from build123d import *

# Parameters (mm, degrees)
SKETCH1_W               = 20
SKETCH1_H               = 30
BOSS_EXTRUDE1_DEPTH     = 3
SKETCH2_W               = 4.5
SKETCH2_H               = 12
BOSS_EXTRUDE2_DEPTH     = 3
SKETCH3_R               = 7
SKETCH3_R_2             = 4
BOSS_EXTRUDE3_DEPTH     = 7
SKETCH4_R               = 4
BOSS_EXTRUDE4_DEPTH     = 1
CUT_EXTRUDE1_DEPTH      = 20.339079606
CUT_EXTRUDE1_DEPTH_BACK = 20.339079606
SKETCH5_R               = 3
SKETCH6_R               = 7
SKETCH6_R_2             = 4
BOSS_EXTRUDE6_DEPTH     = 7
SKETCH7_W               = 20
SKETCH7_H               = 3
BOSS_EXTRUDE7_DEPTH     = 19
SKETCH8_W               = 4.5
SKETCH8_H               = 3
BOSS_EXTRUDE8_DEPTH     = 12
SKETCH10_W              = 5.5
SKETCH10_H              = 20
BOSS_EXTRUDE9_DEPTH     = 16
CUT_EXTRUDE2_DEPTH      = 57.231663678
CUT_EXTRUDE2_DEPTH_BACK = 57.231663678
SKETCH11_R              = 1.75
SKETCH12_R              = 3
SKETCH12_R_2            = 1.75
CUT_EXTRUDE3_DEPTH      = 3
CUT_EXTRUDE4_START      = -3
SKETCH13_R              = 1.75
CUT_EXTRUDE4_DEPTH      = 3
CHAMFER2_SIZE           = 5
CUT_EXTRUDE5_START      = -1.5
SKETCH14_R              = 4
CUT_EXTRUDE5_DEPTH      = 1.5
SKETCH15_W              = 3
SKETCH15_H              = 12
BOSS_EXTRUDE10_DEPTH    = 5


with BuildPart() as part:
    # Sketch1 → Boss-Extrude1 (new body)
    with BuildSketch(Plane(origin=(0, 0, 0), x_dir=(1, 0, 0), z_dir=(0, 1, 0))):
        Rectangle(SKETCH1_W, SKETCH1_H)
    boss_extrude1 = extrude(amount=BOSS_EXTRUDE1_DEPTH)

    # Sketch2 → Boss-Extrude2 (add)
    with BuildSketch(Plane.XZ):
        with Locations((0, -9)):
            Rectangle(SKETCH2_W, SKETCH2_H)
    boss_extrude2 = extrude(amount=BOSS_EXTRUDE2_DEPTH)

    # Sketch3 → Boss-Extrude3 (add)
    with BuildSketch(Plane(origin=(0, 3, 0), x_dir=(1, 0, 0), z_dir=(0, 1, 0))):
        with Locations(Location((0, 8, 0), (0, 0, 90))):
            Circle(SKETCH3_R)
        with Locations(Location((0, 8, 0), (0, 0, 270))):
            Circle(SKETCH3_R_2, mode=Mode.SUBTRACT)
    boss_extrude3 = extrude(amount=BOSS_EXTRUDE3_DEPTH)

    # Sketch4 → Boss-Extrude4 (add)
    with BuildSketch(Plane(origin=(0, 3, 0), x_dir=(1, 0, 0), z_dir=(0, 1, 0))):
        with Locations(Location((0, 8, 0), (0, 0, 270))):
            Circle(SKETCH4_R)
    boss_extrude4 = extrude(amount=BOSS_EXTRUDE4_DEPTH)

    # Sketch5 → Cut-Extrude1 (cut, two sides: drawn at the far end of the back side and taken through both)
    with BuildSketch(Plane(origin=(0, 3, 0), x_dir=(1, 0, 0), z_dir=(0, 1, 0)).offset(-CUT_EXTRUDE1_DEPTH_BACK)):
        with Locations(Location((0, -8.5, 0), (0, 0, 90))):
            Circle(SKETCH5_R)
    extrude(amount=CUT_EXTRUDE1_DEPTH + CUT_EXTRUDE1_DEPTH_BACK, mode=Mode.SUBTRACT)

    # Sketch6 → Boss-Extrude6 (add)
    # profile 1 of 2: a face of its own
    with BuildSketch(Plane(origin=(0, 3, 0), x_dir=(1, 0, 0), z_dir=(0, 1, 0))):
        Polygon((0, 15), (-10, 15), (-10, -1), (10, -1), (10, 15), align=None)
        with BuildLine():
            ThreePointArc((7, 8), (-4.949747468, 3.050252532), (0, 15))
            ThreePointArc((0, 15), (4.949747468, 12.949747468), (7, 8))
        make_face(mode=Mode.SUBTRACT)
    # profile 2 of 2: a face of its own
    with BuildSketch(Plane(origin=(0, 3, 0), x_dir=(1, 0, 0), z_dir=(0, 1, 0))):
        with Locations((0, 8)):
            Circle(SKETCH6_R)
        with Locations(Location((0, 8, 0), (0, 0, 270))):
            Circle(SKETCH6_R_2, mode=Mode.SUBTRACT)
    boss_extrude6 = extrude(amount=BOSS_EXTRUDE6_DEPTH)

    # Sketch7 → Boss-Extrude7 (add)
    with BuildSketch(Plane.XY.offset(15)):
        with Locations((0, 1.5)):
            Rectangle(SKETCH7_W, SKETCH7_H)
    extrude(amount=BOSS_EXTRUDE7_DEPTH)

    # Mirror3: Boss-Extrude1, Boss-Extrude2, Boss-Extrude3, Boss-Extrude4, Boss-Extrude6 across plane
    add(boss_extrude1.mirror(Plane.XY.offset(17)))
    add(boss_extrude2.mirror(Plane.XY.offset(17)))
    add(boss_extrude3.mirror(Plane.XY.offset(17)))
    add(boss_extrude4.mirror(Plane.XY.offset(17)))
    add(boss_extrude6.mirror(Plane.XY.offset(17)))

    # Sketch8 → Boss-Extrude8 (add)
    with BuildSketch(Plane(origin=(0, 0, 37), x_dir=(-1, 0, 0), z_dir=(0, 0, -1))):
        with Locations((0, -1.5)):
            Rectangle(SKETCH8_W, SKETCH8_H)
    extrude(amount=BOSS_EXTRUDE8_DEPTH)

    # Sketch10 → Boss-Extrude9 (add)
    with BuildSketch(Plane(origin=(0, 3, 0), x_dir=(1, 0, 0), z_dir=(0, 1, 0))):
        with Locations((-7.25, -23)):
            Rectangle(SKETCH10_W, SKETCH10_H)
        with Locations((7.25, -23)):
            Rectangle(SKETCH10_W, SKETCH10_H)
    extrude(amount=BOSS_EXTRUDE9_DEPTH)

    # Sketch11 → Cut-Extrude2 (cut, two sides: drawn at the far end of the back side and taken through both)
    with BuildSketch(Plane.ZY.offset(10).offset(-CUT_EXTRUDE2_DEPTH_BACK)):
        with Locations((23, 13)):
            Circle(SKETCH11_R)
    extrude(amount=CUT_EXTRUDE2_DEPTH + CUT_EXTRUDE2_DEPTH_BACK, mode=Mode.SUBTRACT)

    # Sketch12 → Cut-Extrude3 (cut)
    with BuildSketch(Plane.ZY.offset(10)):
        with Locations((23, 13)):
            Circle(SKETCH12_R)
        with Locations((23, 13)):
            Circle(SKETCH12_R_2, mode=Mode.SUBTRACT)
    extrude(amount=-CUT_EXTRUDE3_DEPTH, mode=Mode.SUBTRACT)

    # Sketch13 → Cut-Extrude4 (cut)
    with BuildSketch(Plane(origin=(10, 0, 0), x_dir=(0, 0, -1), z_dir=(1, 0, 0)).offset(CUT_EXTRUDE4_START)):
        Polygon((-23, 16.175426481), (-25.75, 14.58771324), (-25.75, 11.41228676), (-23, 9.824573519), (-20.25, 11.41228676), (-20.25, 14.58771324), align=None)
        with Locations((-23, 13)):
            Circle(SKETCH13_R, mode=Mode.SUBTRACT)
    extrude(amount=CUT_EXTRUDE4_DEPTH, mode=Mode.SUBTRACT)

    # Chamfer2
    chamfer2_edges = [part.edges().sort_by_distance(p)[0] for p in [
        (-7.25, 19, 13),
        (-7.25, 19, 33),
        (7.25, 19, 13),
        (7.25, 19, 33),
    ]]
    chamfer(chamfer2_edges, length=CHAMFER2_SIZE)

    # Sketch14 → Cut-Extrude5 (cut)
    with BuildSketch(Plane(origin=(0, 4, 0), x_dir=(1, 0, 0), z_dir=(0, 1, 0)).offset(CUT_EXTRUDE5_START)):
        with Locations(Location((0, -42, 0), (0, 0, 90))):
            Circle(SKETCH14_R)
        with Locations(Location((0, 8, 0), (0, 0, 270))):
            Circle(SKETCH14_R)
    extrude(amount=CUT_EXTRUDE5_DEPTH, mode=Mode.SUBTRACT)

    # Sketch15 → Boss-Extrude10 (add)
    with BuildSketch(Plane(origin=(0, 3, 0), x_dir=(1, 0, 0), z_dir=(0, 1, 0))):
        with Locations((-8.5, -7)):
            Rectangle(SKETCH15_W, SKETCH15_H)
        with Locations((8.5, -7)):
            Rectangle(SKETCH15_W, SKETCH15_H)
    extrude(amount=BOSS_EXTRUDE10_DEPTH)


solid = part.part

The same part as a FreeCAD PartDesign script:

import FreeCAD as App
import Part
import Sketcher

V = App.Vector
Q = App.Units.Quantity


def edges_at(feature, points):
    """Names of the edges that pass closest to the given points."""
    edges = feature.Shape.Edges
    near = lambda p: min(range(len(edges)), key=lambda i: edges[i].distToShape(Part.Vertex(*p))[0])
    return sorted({f"Edge{near(p) + 1}" for p in points})


def add_polygon(sketch, points):
    """Adds a closed chain of lines whose ends are joined by coincident constraints."""
    first, n = sketch.GeometryCount, len(points)
    for a, b in zip(points, points[1:] + points[:1]):
        sketch.addGeometry(Part.LineSegment(App.Vector(*a, 0), App.Vector(*b, 0)), False)
    for i in range(n):
        sketch.addConstraint(Sketcher.Constraint("Coincident", first + i, 2, first + (i + 1) % n, 1))

doc = App.newDocument("Part")
params = doc.addObject("Spreadsheet::Sheet", "Params")
for row, (alias, value) in enumerate([
    ("sketch1_width", "20 mm"),
    ("sketch1_height", "30 mm"),
    ("pad1_length", "3 mm"),
    ("sketch2_height", "12 mm"),
    ("sketch2_width", "4.5 mm"),
    ("pad2_length", "3 mm"),
    ("sketch3_diameter", "14 mm"),
    ("sketch3_diameter2", "8 mm"),
    ("pad3_length", "7 mm"),
    ("sketch4_diameter", "8 mm"),
    ("pad4_length", "1 mm"),
    ("sketch5_diameter", "6 mm"),
    ("sketch6_diameter", "8 mm"),
    ("sketch6_width", "20 mm"),
    ("sketch6_height", "16 mm"),
    ("pad5_length", "7 mm"),
    ("sketch7_width", "20 mm"),
    ("sketch7_height", "3 mm"),
    ("pad6_length", "19 mm"),
    ("sketch8_height", "3 mm"),
    ("sketch8_width", "4.5 mm"),
    ("pad7_length", "12 mm"),
    ("sketch9_height", "20 mm"),
    ("sketch9_width", "5.5 mm"),
    ("pad8_length", "16 mm"),
    ("sketch10_diameter", "3.5 mm"),
    ("sketch11_diameter", "6 mm"),
    ("sketch11_diameter2", "3.5 mm"),
    ("pocket3_length", "3 mm"),
    ("sketch12_diameter", "3.5 mm"),
    ("pocket4_length", "3 mm"),
    ("chamfer_size", "5 mm"),
    ("sketch13_diameter", "8 mm"),
    ("pocket5_length", "1.5 mm"),
    ("sketch14_width", "3 mm"),
    ("sketch14_height", "12 mm"),
    ("pad9_length", "5 mm"),
], start=1):
    params.set(f"A{row}", alias)
    params.set(f"B{row}", "=" + value)
    params.setAlias(f"B{row}", alias)

body = doc.addObject("PartDesign::Body", "Body")

# Sketch on XZ plane
sketch1 = doc.addObject("Sketcher::SketchObject", "Sketch")
body.addObject(sketch1)
sketch1.AttachmentSupport = (doc.XZ_Plane, [""])
sketch1.MapMode = "FlatFace"
add_polygon(sketch1, [(-10, -15), (-10, 15), (10, 15), (10, -15)])  # lines 0-3
sketch1.addConstraint(Sketcher.Constraint("Vertical", 0))
sketch1.addConstraint(Sketcher.Constraint("Horizontal", 1))
sketch1.addConstraint(Sketcher.Constraint("Vertical", 2))
sketch1.addConstraint(Sketcher.Constraint("Horizontal", 3))
sketch1.addConstraint(Sketcher.Constraint("Symmetric", 0, 2, 2, 2, -1, 1))
sketch1.addConstraint(Sketcher.Constraint("DistanceX", 1, 1, 1, 2, 20.0))
sketch1.addConstraint(Sketcher.Constraint("DistanceY", 0, 1, 0, 2, 30.0))
sketch1.setExpression("Constraints[9]", "Params.sketch1_width")
sketch1.setExpression("Constraints[10]", "Params.sketch1_height")
pad1 = doc.addObject("PartDesign::Pad", "Pad")
body.addObject(pad1)
pad1.Profile = sketch1
pad1.setExpression("Length", "Params.pad1_length")
pad1.Reversed = True

# Sketch on XZ plane
sketch2 = doc.addObject("Sketcher::SketchObject", "Sketch001")
body.addObject(sketch2)
sketch2.AttachmentSupport = (doc.XZ_Plane, [""])
sketch2.MapMode = "FlatFace"
add_polygon(sketch2, [(-2.2, -3), (-2.2, -15), (2.2, -15), (2.2, -3)])  # lines 0-3
sketch2.addConstraint(Sketcher.Constraint("Vertical", 0))
sketch2.addConstraint(Sketcher.Constraint("Horizontal", 1))
sketch2.addConstraint(Sketcher.Constraint("Vertical", 2))
sketch2.addConstraint(Sketcher.Constraint("Horizontal", 3))
sketch2.addConstraint(Sketcher.Constraint("DistanceY", 0, 2, 0, 1, 12.0))
sketch2.addConstraint(Sketcher.Constraint("DistanceX", 1, 1, 1, 2, 4.5))
sketch2.addConstraint(Sketcher.Constraint("DistanceY", 0, 2, -1, 1, 15.0))
sketch2.addConstraint(Sketcher.Constraint("DistanceX", 0, 2, -1, 1, 2.25))
sketch2.setExpression("Constraints[8]", "Params.sketch2_height")
sketch2.setExpression("Constraints[9]", "Params.sketch2_width")
pad2 = doc.addObject("PartDesign::Pad", "Pad001")
body.addObject(pad2)
pad2.Profile = sketch2
pad2.setExpression("Length", "Params.pad2_length")

# Sketch on XZ plane
sketch3 = doc.addObject("Sketcher::SketchObject", "Sketch002")
body.addObject(sketch3)
sketch3.AttachmentSupport = (doc.XZ_Plane, [""])
sketch3.MapMode = "FlatFace"
sketch3.AttachmentOffset = App.Placement(V(0, 0, -3), App.Rotation())
sketch3.addGeometry(Part.Circle(V(0, -8, 0), V(0, 0, 1), 7), False)
sketch3.addGeometry(Part.Circle(V(0, -8, 0), V(0, 0, 1), 4), False)
sketch3.addConstraint(Sketcher.Constraint("Coincident", 1, 3, 0, 3))
sketch3.addConstraint(Sketcher.Constraint("PointOnObject", 0, 3, -2))
sketch3.addConstraint(Sketcher.Constraint("Diameter", 0, 14.0))
sketch3.addConstraint(Sketcher.Constraint("Diameter", 1, 8.0))
sketch3.addConstraint(Sketcher.Constraint("DistanceY", 0, 3, -1, 1, 8.0))
sketch3.setExpression("Constraints[2]", "Params.sketch3_diameter")
sketch3.setExpression("Constraints[3]", "Params.sketch3_diameter2")
pad3 = doc.addObject("PartDesign::Pad", "Pad002")
body.addObject(pad3)
pad3.Profile = sketch3
pad3.setExpression("Length", "Params.pad3_length")
pad3.Reversed = True

# Sketch on XZ plane
sketch4 = doc.addObject("Sketcher::SketchObject", "Sketch003")
body.addObject(sketch4)
sketch4.AttachmentSupport = (doc.XZ_Plane, [""])
sketch4.MapMode = "FlatFace"
sketch4.AttachmentOffset = App.Placement(V(0, 0, -3), App.Rotation())
sketch4.addGeometry(Part.Circle(V(0, -8, 0), V(0, 0, 1), 4), False)
sketch4.addConstraint(Sketcher.Constraint("PointOnObject", 0, 3, -2))
sketch4.addConstraint(Sketcher.Constraint("Diameter", 0, 8.0))
sketch4.addConstraint(Sketcher.Constraint("DistanceY", 0, 3, -1, 1, 8.0))
sketch4.setExpression("Constraints[1]", "Params.sketch4_diameter")
pad4 = doc.addObject("PartDesign::Pad", "Pad003")
body.addObject(pad4)
pad4.Profile = sketch4
pad4.setExpression("Length", "Params.pad4_length")
pad4.Reversed = True

# Sketch on XZ plane
sketch5 = doc.addObject("Sketcher::SketchObject", "Sketch004")
body.addObject(sketch5)
sketch5.AttachmentSupport = (doc.XZ_Plane, [""])
sketch5.MapMode = "FlatFace"
sketch5.AttachmentOffset = App.Placement(V(0, 0, -3), App.Rotation())
sketch5.addGeometry(Part.Circle(V(0, 8.5, 0), V(0, 0, 1), 3), False)
sketch5.addConstraint(Sketcher.Constraint("PointOnObject", 0, 3, -2))
sketch5.addConstraint(Sketcher.Constraint("Diameter", 0, 6.0))
sketch5.addConstraint(Sketcher.Constraint("DistanceY", -1, 1, 0, 3, 8.5))
sketch5.setExpression("Constraints[1]", "Params.sketch5_diameter")
pocket1 = doc.addObject("PartDesign::Pocket", "Pocket")
body.addObject(pocket1)
pocket1.Profile = sketch5
pocket1.Type = "ThroughAll"
pocket1.Midplane = True

# Sketch on XZ plane
sketch6 = doc.addObject("Sketcher::SketchObject", "Sketch005")
body.addObject(sketch6)
sketch6.AttachmentSupport = (doc.XZ_Plane, [""])
sketch6.MapMode = "FlatFace"
sketch6.AttachmentOffset = App.Placement(V(0, 0, -3), App.Rotation())
add_polygon(sketch6, [(10, -15), (-10, -15), (-10, 1), (10, 1)])  # lines 0-3
sketch6.addGeometry(Part.Circle(V(0, -8, 0), V(0, 0, 1), 4), False)  # 4
sketch6.addConstraint(Sketcher.Constraint("Horizontal", 0))
sketch6.addConstraint(Sketcher.Constraint("Vertical", 1))
sketch6.addConstraint(Sketcher.Constraint("Horizontal", 2))
sketch6.addConstraint(Sketcher.Constraint("Vertical", 3))
sketch6.addConstraint(Sketcher.Constraint("PointOnObject", 4, 3, -2))
sketch6.addConstraint(Sketcher.Constraint("Diameter", 4, 8.0))
sketch6.addConstraint(Sketcher.Constraint("DistanceX", 0, 2, 0, 1, 20.0))
sketch6.addConstraint(Sketcher.Constraint("DistanceY", 1, 1, 1, 2, 16.0))
sketch6.addConstraint(Sketcher.Constraint("DistanceY", 4, 3, -1, 1, 8.0))
sketch6.addConstraint(Sketcher.Constraint("DistanceX", 0, 2, -1, 1, 10.0))
sketch6.addConstraint(Sketcher.Constraint("DistanceY", 0, 2, -1, 1, 15.0))
sketch6.setExpression("Constraints[9]", "Params.sketch6_diameter")
sketch6.setExpression("Constraints[10]", "Params.sketch6_width")
sketch6.setExpression("Constraints[11]", "Params.sketch6_height")
pad5 = doc.addObject("PartDesign::Pad", "Pad004")
body.addObject(pad5)
pad5.Profile = sketch6
pad5.setExpression("Length", "Params.pad5_length")
pad5.Reversed = True

# Sketch on XY plane
sketch7 = doc.addObject("Sketcher::SketchObject", "Sketch006")
body.addObject(sketch7)
sketch7.AttachmentSupport = (doc.XY_Plane, [""])
sketch7.MapMode = "FlatFace"
sketch7.AttachmentOffset = App.Placement(V(0, 0, 15), App.Rotation())
add_polygon(sketch7, [(-10, 3), (-10, 0), (10, 0), (10, 3)])  # lines 0-3
sketch7.addConstraint(Sketcher.Constraint("Vertical", 0))
sketch7.addConstraint(Sketcher.Constraint("Horizontal", 1))
sketch7.addConstraint(Sketcher.Constraint("Vertical", 2))
sketch7.addConstraint(Sketcher.Constraint("Horizontal", 3))
sketch7.addConstraint(Sketcher.Constraint("Symmetric", 0, 2, 1, 2, -1, 1))
sketch7.addConstraint(Sketcher.Constraint("DistanceX", 1, 1, 1, 2, 20.0))
sketch7.addConstraint(Sketcher.Constraint("DistanceY", 0, 2, 0, 1, 3.0))
sketch7.setExpression("Constraints[9]", "Params.sketch7_width")
sketch7.setExpression("Constraints[10]", "Params.sketch7_height")
pad6 = doc.addObject("PartDesign::Pad", "Pad005")
body.addObject(pad6)
pad6.Profile = sketch7
pad6.setExpression("Length", "Params.pad6_length")
doc.recompute()

datumplane = doc.addObject("PartDesign::Plane", "DatumPlane")
body.addObject(datumplane)
datumplane.AttachmentSupport = (doc.XY_Plane, [""])
datumplane.MapMode = "FlatFace"
datumplane.AttachmentOffset = App.Placement(V(0, 0, 17), App.Rotation())
mirrored = doc.addObject("PartDesign::Mirrored", "Mirrored")
body.addObject(mirrored)
mirrored.Originals = [pad1, pad2, pad3, pad4, pad5]
mirrored.MirrorPlane = (datumplane, [""])
body.Tip = mirrored

# Sketch on XY plane
sketch8 = doc.addObject("Sketcher::SketchObject", "Sketch007")
body.addObject(sketch8)
sketch8.AttachmentSupport = (doc.XY_Plane, [""])
sketch8.MapMode = "FlatFace"
sketch8.AttachmentOffset = App.Placement(V(0, 0, 37), App.Rotation())
add_polygon(sketch8, [(2.2, 0), (2.2, -3), (-2.2, -3), (-2.2, 0)])  # lines 0-3
sketch8.addConstraint(Sketcher.Constraint("Vertical", 0))
sketch8.addConstraint(Sketcher.Constraint("Horizontal", 1))
sketch8.addConstraint(Sketcher.Constraint("Vertical", 2))
sketch8.addConstraint(Sketcher.Constraint("Horizontal", 3))
sketch8.addConstraint(Sketcher.Constraint("Symmetric", 2, 2, 3, 2, -1, 1))
sketch8.addConstraint(Sketcher.Constraint("DistanceY", 0, 2, 0, 1, 3.0))
sketch8.addConstraint(Sketcher.Constraint("DistanceX", 1, 2, 1, 1, 4.5))
sketch8.setExpression("Constraints[9]", "Params.sketch8_height")
sketch8.setExpression("Constraints[10]", "Params.sketch8_width")
pad7 = doc.addObject("PartDesign::Pad", "Pad006")
body.addObject(pad7)
pad7.Profile = sketch8
pad7.setExpression("Length", "Params.pad7_length")
pad7.Reversed = True

# Sketch on XZ plane
sketch9 = doc.addObject("Sketcher::SketchObject", "Sketch008")
body.addObject(sketch9)
sketch9.AttachmentSupport = (doc.XZ_Plane, [""])
sketch9.MapMode = "FlatFace"
sketch9.AttachmentOffset = App.Placement(V(0, 0, -3), App.Rotation())
add_polygon(sketch9, [(-10, 13), (-10, 33), (-4, 33), (-4, 13)])  # lines 0-3
add_polygon(sketch9, [(4, 13), (4, 33), (10, 33), (10, 13)])  # lines 4-7
sketch9.addConstraint(Sketcher.Constraint("Vertical", 0))
sketch9.addConstraint(Sketcher.Constraint("Horizontal", 1))
sketch9.addConstraint(Sketcher.Constraint("Vertical", 2))
sketch9.addConstraint(Sketcher.Constraint("Horizontal", 3))
sketch9.addConstraint(Sketcher.Constraint("Vertical", 4))
sketch9.addConstraint(Sketcher.Constraint("Horizontal", 5))
sketch9.addConstraint(Sketcher.Constraint("Vertical", 6))
sketch9.addConstraint(Sketcher.Constraint("Horizontal", 7))
sketch9.addConstraint(Sketcher.Constraint("Symmetric", 1, 2, 4, 2, -2))
sketch9.addConstraint(Sketcher.Constraint("Symmetric", 3, 2, 6, 2, -2))
sketch9.addConstraint(Sketcher.Constraint("DistanceY", 0, 1, 0, 2, 20.0))
sketch9.addConstraint(Sketcher.Constraint("DistanceX", 1, 1, 1, 2, 5.5))
sketch9.addConstraint(Sketcher.Constraint("DistanceX", 0, 2, -1, 1, 10.0))
sketch9.addConstraint(Sketcher.Constraint("DistanceY", -1, 1, 0, 2, 33.0))
sketch9.setExpression("Constraints[18]", "Params.sketch9_height")
sketch9.setExpression("Constraints[19]", "Params.sketch9_width")
pad8 = doc.addObject("PartDesign::Pad", "Pad007")
body.addObject(pad8)
pad8.Profile = sketch9
pad8.setExpression("Length", "Params.pad8_length")
pad8.Reversed = True

# Sketch on YZ plane
sketch10 = doc.addObject("Sketcher::SketchObject", "Sketch009")
body.addObject(sketch10)
sketch10.AttachmentSupport = (doc.YZ_Plane, [""])
sketch10.MapMode = "FlatFace"
sketch10.AttachmentOffset = App.Placement(V(0, 0, -10), App.Rotation())
sketch10.addGeometry(Part.Circle(V(13, 23, 0), V(0, 0, 1), 1.8), False)
sketch10.addConstraint(Sketcher.Constraint("Diameter", 0, 3.5))
sketch10.addConstraint(Sketcher.Constraint("DistanceX", -1, 1, 0, 3, 13.0))
sketch10.addConstraint(Sketcher.Constraint("DistanceY", -1, 1, 0, 3, 23.0))
sketch10.setExpression("Constraints[0]", "Params.sketch10_diameter")
pocket2 = doc.addObject("PartDesign::Pocket", "Pocket001")
body.addObject(pocket2)
pocket2.Profile = sketch10
pocket2.Type = "ThroughAll"
pocket2.Midplane = True

# Sketch on YZ plane
sketch11 = doc.addObject("Sketcher::SketchObject", "Sketch010")
body.addObject(sketch11)
sketch11.AttachmentSupport = (doc.YZ_Plane, [""])
sketch11.MapMode = "FlatFace"
sketch11.AttachmentOffset = App.Placement(V(0, 0, -10), App.Rotation())
sketch11.addGeometry(Part.Circle(V(13, 23, 0), V(0, 0, 1), 3), False)
sketch11.addGeometry(Part.Circle(V(13, 23, 0), V(0, 0, 1), 1.8), False)
sketch11.addConstraint(Sketcher.Constraint("Coincident", 1, 3, 0, 3))
sketch11.addConstraint(Sketcher.Constraint("Diameter", 0, 6.0))
sketch11.addConstraint(Sketcher.Constraint("Diameter", 1, 3.5))
sketch11.addConstraint(Sketcher.Constraint("DistanceX", -1, 1, 0, 3, 13.0))
sketch11.addConstraint(Sketcher.Constraint("DistanceY", -1, 1, 0, 3, 23.0))
sketch11.setExpression("Constraints[1]", "Params.sketch11_diameter")
sketch11.setExpression("Constraints[2]", "Params.sketch11_diameter2")
pocket3 = doc.addObject("PartDesign::Pocket", "Pocket002")
body.addObject(pocket3)
pocket3.Profile = sketch11
pocket3.setExpression("Length", "Params.pocket3_length")
pocket3.Reversed = True

# Sketch on YZ plane
sketch12 = doc.addObject("Sketcher::SketchObject", "Sketch011")
body.addObject(sketch12)
sketch12.AttachmentSupport = (doc.YZ_Plane, [""])
sketch12.MapMode = "FlatFace"
sketch12.AttachmentOffset = App.Placement(V(0, 0, 7), App.Rotation())
add_polygon(sketch12, [(16.2, 23), (14.6, 25.8), (11.4, 25.8), (9.8, 23), (11.4, 20.2), (14.6, 20.2)])  # lines 0-5
sketch12.addGeometry(Part.Circle(V(13, 23, 0), V(0, 0, 1), 1.8), False)  # 6
sketch12.addConstraint(Sketcher.Constraint("Horizontal", 1))
sketch12.addConstraint(Sketcher.Constraint("Horizontal", 4))
sketch12.addConstraint(Sketcher.Constraint("Parallel", 0, 3))
sketch12.addConstraint(Sketcher.Constraint("Parallel", 2, 5))
sketch12.addConstraint(Sketcher.Constraint("Horizontal", 6, 3, 2, 2))
sketch12.addConstraint(Sketcher.Constraint("Horizontal", 2, 2, 5, 2))
sketch12.addConstraint(Sketcher.Constraint("Vertical", 1, 2, 3, 2))
sketch12.addConstraint(Sketcher.Constraint("Vertical", 0, 2, 4, 2))
sketch12.addConstraint(Sketcher.Constraint("Diameter", 6, 3.5))
sketch12.addConstraint(Sketcher.Constraint("Angle", 0, Q("120 deg")))
sketch12.addConstraint(Sketcher.Constraint("DistanceX", -1, 1, 6, 3, 13.0))
sketch12.addConstraint(Sketcher.Constraint("DistanceY", -1, 1, 6, 3, 23.0))
sketch12.addConstraint(Sketcher.Constraint("DistanceY", 3, 2, 1, 2, 5.5))
sketch12.addConstraint(Sketcher.Constraint("DistanceX", 1, 2, 1, 1, 3.175426))
sketch12.addConstraint(Sketcher.Constraint("DistanceX", -1, 1, 0, 2, 14.587713))
sketch12.setExpression("Constraints[14]", "Params.sketch12_diameter")
pocket4 = doc.addObject("PartDesign::Pocket", "Pocket003")
body.addObject(pocket4)
pocket4.Profile = sketch12
pocket4.setExpression("Length", "Params.pocket4_length")
pocket4.Reversed = True
doc.recompute()

chamfer = doc.addObject("PartDesign::Chamfer", "Chamfer")
body.addObject(chamfer)
chamfer.Base = (pocket4, edges_at(pocket4, [
    (-7.25, 19, 13),
    (-7.25, 19, 33),
    (7.25, 19, 13),
    (7.25, 19, 33),
]))
chamfer.setExpression("Size", "Params.chamfer_size")

# Sketch on XZ plane
sketch13 = doc.addObject("Sketcher::SketchObject", "Sketch012")
body.addObject(sketch13)
sketch13.AttachmentSupport = (doc.XZ_Plane, [""])
sketch13.MapMode = "FlatFace"
sketch13.AttachmentOffset = App.Placement(V(0, 0, -2.5), App.Rotation())
sketch13.addGeometry(Part.Circle(V(0, 42, 0), V(0, 0, 1), 4), False)
sketch13.addGeometry(Part.Circle(V(0, -8, 0), V(0, 0, 1), 4), False)
sketch13.addConstraint(Sketcher.Constraint("Equal", 0, 1))
sketch13.addConstraint(Sketcher.Constraint("PointOnObject", 0, 3, -2))
sketch13.addConstraint(Sketcher.Constraint("PointOnObject", 1, 3, -2))
sketch13.addConstraint(Sketcher.Constraint("Diameter", 0, 8.0))
sketch13.addConstraint(Sketcher.Constraint("DistanceY", -1, 1, 0, 3, 42.0))
sketch13.addConstraint(Sketcher.Constraint("DistanceY", 1, 3, -1, 1, 8.0))
sketch13.setExpression("Constraints[3]", "Params.sketch13_diameter")
pocket5 = doc.addObject("PartDesign::Pocket", "Pocket004")
body.addObject(pocket5)
pocket5.Profile = sketch13
pocket5.setExpression("Length", "Params.pocket5_length")

# Sketch on XZ plane
sketch14 = doc.addObject("Sketcher::SketchObject", "Sketch013")
body.addObject(sketch14)
sketch14.AttachmentSupport = (doc.XZ_Plane, [""])
sketch14.MapMode = "FlatFace"
sketch14.AttachmentOffset = App.Placement(V(0, 0, -3), App.Rotation())
add_polygon(sketch14, [(-10, 1), (-10, 13), (-7, 13), (-7, 1)])  # lines 0-3
add_polygon(sketch14, [(7, 1), (7, 13), (10, 13), (10, 1)])  # lines 4-7
sketch14.addConstraint(Sketcher.Constraint("Vertical", 0))
sketch14.addConstraint(Sketcher.Constraint("Horizontal", 1))
sketch14.addConstraint(Sketcher.Constraint("Vertical", 2))
sketch14.addConstraint(Sketcher.Constraint("Horizontal", 3))
sketch14.addConstraint(Sketcher.Constraint("Vertical", 4))
sketch14.addConstraint(Sketcher.Constraint("Horizontal", 5))
sketch14.addConstraint(Sketcher.Constraint("Vertical", 6))
sketch14.addConstraint(Sketcher.Constraint("Horizontal", 7))
sketch14.addConstraint(Sketcher.Constraint("Symmetric", 1, 2, 4, 2, -2))
sketch14.addConstraint(Sketcher.Constraint("Symmetric", 3, 2, 6, 2, -2))
sketch14.addConstraint(Sketcher.Constraint("DistanceX", 1, 1, 1, 2, 3.0))
sketch14.addConstraint(Sketcher.Constraint("DistanceY", 0, 1, 0, 2, 12.0))
sketch14.addConstraint(Sketcher.Constraint("DistanceX", 0, 2, -1, 1, 10.0))
sketch14.addConstraint(Sketcher.Constraint("DistanceY", -1, 1, 0, 2, 13.0))
sketch14.setExpression("Constraints[18]", "Params.sketch14_width")
sketch14.setExpression("Constraints[19]", "Params.sketch14_height")
pad9 = doc.addObject("PartDesign::Pad", "Pad008")
body.addObject(pad9)
pad9.Profile = sketch14
pad9.setExpression("Length", "Params.pad9_length")
pad9.Reversed = True

doc.recompute()
